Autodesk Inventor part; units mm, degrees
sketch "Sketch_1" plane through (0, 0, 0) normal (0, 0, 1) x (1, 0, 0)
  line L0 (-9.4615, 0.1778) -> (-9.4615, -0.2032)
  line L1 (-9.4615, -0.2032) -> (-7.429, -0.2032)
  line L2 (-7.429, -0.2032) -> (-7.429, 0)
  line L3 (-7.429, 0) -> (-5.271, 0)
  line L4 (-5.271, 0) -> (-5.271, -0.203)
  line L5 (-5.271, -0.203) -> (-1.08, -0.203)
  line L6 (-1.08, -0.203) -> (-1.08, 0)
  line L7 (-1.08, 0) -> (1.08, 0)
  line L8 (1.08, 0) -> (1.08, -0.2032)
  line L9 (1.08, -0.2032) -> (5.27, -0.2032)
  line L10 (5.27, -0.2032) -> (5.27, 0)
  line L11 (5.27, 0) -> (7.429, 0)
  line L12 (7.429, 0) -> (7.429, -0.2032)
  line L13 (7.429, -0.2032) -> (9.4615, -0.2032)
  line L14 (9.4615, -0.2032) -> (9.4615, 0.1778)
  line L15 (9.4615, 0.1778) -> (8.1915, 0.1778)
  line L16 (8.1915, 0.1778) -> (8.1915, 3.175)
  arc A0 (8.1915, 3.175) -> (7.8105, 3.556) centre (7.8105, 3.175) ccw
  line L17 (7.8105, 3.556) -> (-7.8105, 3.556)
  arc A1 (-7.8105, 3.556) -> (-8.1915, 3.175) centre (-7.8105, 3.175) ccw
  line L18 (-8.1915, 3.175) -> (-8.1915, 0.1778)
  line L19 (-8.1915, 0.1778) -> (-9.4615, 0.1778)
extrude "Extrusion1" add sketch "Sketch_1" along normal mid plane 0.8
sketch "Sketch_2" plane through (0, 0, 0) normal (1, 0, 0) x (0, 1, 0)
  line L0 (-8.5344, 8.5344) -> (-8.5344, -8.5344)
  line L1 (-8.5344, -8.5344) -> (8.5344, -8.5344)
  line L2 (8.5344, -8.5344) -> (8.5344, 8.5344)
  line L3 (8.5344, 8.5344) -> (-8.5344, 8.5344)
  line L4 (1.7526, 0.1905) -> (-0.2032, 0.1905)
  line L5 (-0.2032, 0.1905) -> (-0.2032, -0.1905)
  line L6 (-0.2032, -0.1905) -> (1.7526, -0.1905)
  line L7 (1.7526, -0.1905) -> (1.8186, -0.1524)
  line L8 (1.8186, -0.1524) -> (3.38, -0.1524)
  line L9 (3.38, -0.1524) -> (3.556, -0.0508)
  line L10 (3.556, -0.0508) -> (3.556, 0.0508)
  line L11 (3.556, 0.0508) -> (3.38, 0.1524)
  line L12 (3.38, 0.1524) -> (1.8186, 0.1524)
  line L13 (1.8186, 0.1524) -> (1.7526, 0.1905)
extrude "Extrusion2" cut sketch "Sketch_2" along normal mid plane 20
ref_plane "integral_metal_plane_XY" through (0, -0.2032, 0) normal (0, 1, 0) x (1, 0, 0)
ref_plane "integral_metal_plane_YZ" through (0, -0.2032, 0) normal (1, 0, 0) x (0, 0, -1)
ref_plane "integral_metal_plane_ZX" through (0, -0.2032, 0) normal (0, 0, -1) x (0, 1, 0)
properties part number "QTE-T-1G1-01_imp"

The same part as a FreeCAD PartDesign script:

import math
import FreeCAD as App
import Part
import Sketcher
from FreeCAD import Vector
Q = App.Units.Quantity


def add_polygon(sketch, points):
    """Adds a closed chain of lines whose ends are joined by coincident constraints."""
    first, n = sketch.GeometryCount, len(points)
    for a, b in zip(points, points[1:] + points[:1]):
        sketch.addGeometry(Part.LineSegment(App.Vector(*a, 0), App.Vector(*b, 0)), False)
    for i in range(n):
        sketch.addConstraint(Sketcher.Constraint("Coincident", first + i, 2, first + (i + 1) % n, 1))

doc = App.newDocument("Part")
body = doc.addObject("PartDesign::Body", "Body")

# Sketch on XY plane
sketch1 = body.newObject("Sketcher::SketchObject", "Sketch")
sketch1.AttachmentSupport = (doc.getObject("XY_Plane"), [""])
sketch1.MapMode = "FlatFace"
sketch1.addGeometry(Part.LineSegment(Vector(-8.19, 0.18, 0), Vector(-9.46, 0.18, 0)), False)
sketch1.addGeometry(Part.LineSegment(Vector(-9.46, 0.18, 0), Vector(-9.46, -0.2, 0)), False)
sketch1.addGeometry(Part.LineSegment(Vector(-9.46, -0.2, 0), Vector(-7.43, -0.2, 0)), False)
sketch1.addGeometry(Part.LineSegment(Vector(-7.43, -0.2, 0), Vector(-7.43, 0, 0)), False)
sketch1.addGeometry(Part.LineSegment(Vector(-7.43, 0, 0), Vector(-5.27, 0, 0)), False)
sketch1.addGeometry(Part.LineSegment(Vector(-5.27, 0, 0), Vector(-5.27, -0.2, 0)), False)
sketch1.addGeometry(Part.LineSegment(Vector(-5.27, -0.2, 0), Vector(-1.08, -0.2, 0)), False)
sketch1.addGeometry(Part.LineSegment(Vector(-1.08, -0.2, 0), Vector(-1.08, 0, 0)), False)
sketch1.addGeometry(Part.LineSegment(Vector(-1.08, 0, 0), Vector(1.08, 0, 0)), False)
sketch1.addGeometry(Part.LineSegment(Vector(1.08, 0, 0), Vector(1.08, -0.2, 0)), False)
sketch1.addGeometry(Part.LineSegment(Vector(1.08, -0.2, 0), Vector(5.27, -0.2, 0)), False)
sketch1.addGeometry(Part.LineSegment(Vector(5.27, -0.2, 0), Vector(5.27, 0, 0)), False)
sketch1.addGeometry(Part.LineSegment(Vector(5.27, 0, 0), Vector(7.43, 0, 0)), False)
sketch1.addGeometry(Part.LineSegment(Vector(7.43, 0, 0), Vector(7.43, -0.2, 0)), False)
sketch1.addGeometry(Part.LineSegment(Vector(7.43, -0.2, 0), Vector(9.46, -0.2, 0)), False)
sketch1.addGeometry(Part.LineSegment(Vector(9.46, -0.2, 0), Vector(9.46, 0.18, 0)), False)
sketch1.addGeometry(Part.LineSegment(Vector(9.46, 0.18, 0), Vector(8.19, 0.18, 0)), False)
sketch1.addGeometry(Part.LineSegment(Vector(8.19, 0.18, 0), Vector(8.19, 3.17, 0)), False)
sketch1.addGeometry(Part.ArcOfCircle(Part.Circle(Vector(7.81, 3.17, 0), Vector(0, 0, 1), 0.38), math.radians(0), math.radians(90)), False)
sketch1.addGeometry(Part.LineSegment(Vector(7.81, 3.56, 0), Vector(-7.81, 3.56, 0)), False)
sketch1.addGeometry(Part.ArcOfCircle(Part.Circle(Vector(-7.81, 3.17, 0), Vector(0, 0, 1), 0.38), math.radians(90), math.radians(180)), False)
sketch1.addGeometry(Part.LineSegment(Vector(-8.19, 3.17, 0), Vector(-8.19, 0.18, 0)), False)
sketch1.addConstraint(Sketcher.Constraint("Coincident", 0, 2, 1, 1))
sketch1.addConstraint(Sketcher.Constraint("Coincident", 1, 2, 2, 1))
sketch1.addConstraint(Sketcher.Constraint("Coincident", 2, 2, 3, 1))
sketch1.addConstraint(Sketcher.Constraint("Coincident", 3, 2, 4, 1))
sketch1.addConstraint(Sketcher.Constraint("Coincident", 4, 2, 5, 1))
sketch1.addConstraint(Sketcher.Constraint("Coincident", 5, 2, 6, 1))
sketch1.addConstraint(Sketcher.Constraint("Coincident", 6, 2, 7, 1))
sketch1.addConstraint(Sketcher.Constraint("Coincident", 7, 2, 8, 1))
sketch1.addConstraint(Sketcher.Constraint("Coincident", 8, 2, 9, 1))
sketch1.addConstraint(Sketcher.Constraint("Coincident", 9, 2, 10, 1))
sketch1.addConstraint(Sketcher.Constraint("Coincident", 10, 2, 11, 1))
sketch1.addConstraint(Sketcher.Constraint("Coincident", 11, 2, 12, 1))
sketch1.addConstraint(Sketcher.Constraint("Coincident", 12, 2, 13, 1))
sketch1.addConstraint(Sketcher.Constraint("Coincident", 13, 2, 14, 1))
sketch1.addConstraint(Sketcher.Constraint("Coincident", 14, 2, 15, 1))
sketch1.addConstraint(Sketcher.Constraint("Coincident", 15, 2, 16, 1))
sketch1.addConstraint(Sketcher.Constraint("Coincident", 16, 2, 17, 1))
sketch1.addConstraint(Sketcher.Constraint("Tangent", 17, 2, 18, 1))
sketch1.addConstraint(Sketcher.Constraint("Tangent", 18, 2, 19, 1))
sketch1.addConstraint(Sketcher.Constraint("Tangent", 19, 2, 20, 1))
sketch1.addConstraint(Sketcher.Constraint("Tangent", 20, 2, 21, 1))
sketch1.addConstraint(Sketcher.Constraint("Coincident", 21, 2, 0, 1))
sketch1.addConstraint(Sketcher.Constraint("Horizontal", 0))
sketch1.addConstraint(Sketcher.Constraint("Vertical", 1))
sketch1.addConstraint(Sketcher.Constraint("Horizontal", 2))
sketch1.addConstraint(Sketcher.Constraint("Vertical", 3))
sketch1.addConstraint(Sketcher.Constraint("Horizontal", 4))
sketch1.addConstraint(Sketcher.Constraint("Vertical", 5))
sketch1.addConstraint(Sketcher.Constraint("Horizontal", 6))
sketch1.addConstraint(Sketcher.Constraint("Vertical", 7))
sketch1.addConstraint(Sketcher.Constraint("Horizontal", 8))
sketch1.addConstraint(Sketcher.Constraint("Vertical", 9))
sketch1.addConstraint(Sketcher.Constraint("Horizontal", 10))
sketch1.addConstraint(Sketcher.Constraint("Vertical", 11))
sketch1.addConstraint(Sketcher.Constraint("Horizontal", 12))
sketch1.addConstraint(Sketcher.Constraint("Vertical", 13))
sketch1.addConstraint(Sketcher.Constraint("Horizontal", 14))
sketch1.addConstraint(Sketcher.Constraint("Vertical", 15))
sketch1.addConstraint(Sketcher.Constraint("Horizontal", 16))
sketch1.addConstraint(Sketcher.Constraint("Vertical", 17))
sketch1.addConstraint(Sketcher.Constraint("Horizontal", 19))
sketch1.addConstraint(Sketcher.Constraint("Vertical", 21))
sketch1.addConstraint(Sketcher.Constraint("Equal", 18, 20))
sketch1.addConstraint(Sketcher.Constraint("Symmetric", 7, 2, 8, 2, -1, 1))
sketch1.addConstraint(Sketcher.Constraint("Symmetric", 3, 2, 12, 2, -1, 1))
sketch1.addConstraint(Sketcher.Constraint("Symmetric", 1, 2, 14, 2, -2))
sketch1.addConstraint(Sketcher.Constraint("Symmetric", 16, 2, 21, 2, -2))
sketch1.addConstraint(Sketcher.Constraint("PointOnObject", 3, 2, -1))
sketch1.addConstraint(Sketcher.Constraint("Horizontal", 2, 2, 5, 2))
sketch1.addConstraint(Sketcher.Constraint("Horizontal", 6, 2, 9, 2))
sketch1.addConstraint(Sketcher.Constraint("Radius", 18, Q("0.015 in")))
sketch1.addConstraint(Sketcher.Constraint("DistanceX", 0, 2, 0, 1, Q("0.05 in")))
sketch1.addConstraint(Sketcher.Constraint("DistanceX", 6, 1, 6, 2, Q("0.165 in")))
sketch1.addConstraint(Sketcher.Constraint("DistanceX", 12, 1, 12, 2, Q("0.085 in")))
sketch1.addConstraint(Sketcher.Constraint("DistanceX", 19, 2, 19, 1, Q("0.615 in")))
sketch1.addConstraint(Sketcher.Constraint("DistanceY", 1, 2, 1, 1, Q("0.015 in")))
sketch1.addConstraint(Sketcher.Constraint("DistanceY", 3, 1, 3, 2, Q("0.008 in")))
sketch1.addConstraint(Sketcher.Constraint("DistanceY", 17, 1, 17, 2, Q("0.118 in")))
sketch1.addConstraint(Sketcher.Constraint("DistanceX", 6, 2, 10, 2, Q("0.25 in")))
sketch1.addConstraint(Sketcher.Constraint("DistanceX", 2, 1, 2, 2, Q("2.0325 mm")))
pad1 = body.newObject("PartDesign::Pad", "Pad")
pad1.Profile = sketch1
pad1.Length = Q("0.0314961 in")
pad1.Midplane = True

# Sketch on YZ plane
sketch2 = body.newObject("Sketcher::SketchObject", "Sketch001")
sketch2.AttachmentSupport = (doc.getObject("YZ_Plane"), [""])
sketch2.MapMode = "FlatFace"
add_polygon(sketch2, [(8.53, 8.53), (-8.53, 8.53), (-8.53, -8.53), (8.53, -8.53)])  # lines 0-3
add_polygon(sketch2, [(-0.2, 0.19), (1.75, 0.19), (1.82, 0.15), (3.38, 0.15), (3.56, 0.05), (3.56, -0.05), (3.38, -0.15), (1.82, -0.15), (1.75, -0.19), (-0.2, -0.19)])  # lines 4-13
sketch2.addConstraint(Sketcher.Constraint("Horizontal", 0))
sketch2.addConstraint(Sketcher.Constraint("Vertical", 1))
sketch2.addConstraint(Sketcher.Constraint("Horizontal", 2))
sketch2.addConstraint(Sketcher.Constraint("Vertical", 3))
sketch2.addConstraint(Sketcher.Constraint("Horizontal", 4))
sketch2.addConstraint(Sketcher.Constraint("Horizontal", 6))
sketch2.addConstraint(Sketcher.Constraint("Vertical", 8))
sketch2.addConstraint(Sketcher.Constraint("Horizontal", 10))
sketch2.addConstraint(Sketcher.Constraint("Horizontal", 12))
sketch2.addConstraint(Sketcher.Constraint("Vertical", 13))
sketch2.addConstraint(Sketcher.Constraint("Symmetric", 0, 2, 2, 2, -1, 1))
sketch2.addConstraint(Sketcher.Constraint("Symmetric", 6, 2, 9, 2, -1))
sketch2.addConstraint(Sketcher.Constraint("Symmetric", 4, 2, 11, 2, -1))
sketch2.addConstraint(Sketcher.Constraint("Parallel", 5, 7))
sketch2.addConstraint(Sketcher.Constraint("Parallel", 9, 11))
sketch2.addConstraint(Sketcher.Constraint("Vertical", 5, 2, 10, 2))
sketch2.addConstraint(Sketcher.Constraint("Equal", 2, 1))
sketch2.addConstraint(Sketcher.Constraint("DistanceX", 0, 2, 0, 1, Q("0.672 in")))
sketch2.addConstraint(Sketcher.Constraint("DistanceX", 4, 1, 4, 2, Q("0.077 in")))
sketch2.addConstraint(Sketcher.Constraint("DistanceY", 8, 2, 8, 1, Q("0.004 in")))
sketch2.addConstraint(Sketcher.Constraint("DistanceY", 13, 1, 13, 2, Q("0.015 in")))
sketch2.addConstraint(Sketcher.Constraint("DistanceX", -1, 1, 7, 2, Q("0.14 in")))
sketch2.addConstraint(Sketcher.Constraint("DistanceY", 5, 2, 3, 2, Q("0.33 in")))
sketch2.addConstraint(Sketcher.Constraint("Distance", 5, Q("0.003 in")))
sketch2.addConstraint(Sketcher.Constraint("DistanceX", -1, 1, 4, 2, Q("0.069 in")))
pocket1 = body.newObject("PartDesign::Pocket", "Pocket")
pocket1.Profile = sketch2
pocket1.Length = Q("0.7874016 in")
pocket1.Midplane = True

doc.recompute()
